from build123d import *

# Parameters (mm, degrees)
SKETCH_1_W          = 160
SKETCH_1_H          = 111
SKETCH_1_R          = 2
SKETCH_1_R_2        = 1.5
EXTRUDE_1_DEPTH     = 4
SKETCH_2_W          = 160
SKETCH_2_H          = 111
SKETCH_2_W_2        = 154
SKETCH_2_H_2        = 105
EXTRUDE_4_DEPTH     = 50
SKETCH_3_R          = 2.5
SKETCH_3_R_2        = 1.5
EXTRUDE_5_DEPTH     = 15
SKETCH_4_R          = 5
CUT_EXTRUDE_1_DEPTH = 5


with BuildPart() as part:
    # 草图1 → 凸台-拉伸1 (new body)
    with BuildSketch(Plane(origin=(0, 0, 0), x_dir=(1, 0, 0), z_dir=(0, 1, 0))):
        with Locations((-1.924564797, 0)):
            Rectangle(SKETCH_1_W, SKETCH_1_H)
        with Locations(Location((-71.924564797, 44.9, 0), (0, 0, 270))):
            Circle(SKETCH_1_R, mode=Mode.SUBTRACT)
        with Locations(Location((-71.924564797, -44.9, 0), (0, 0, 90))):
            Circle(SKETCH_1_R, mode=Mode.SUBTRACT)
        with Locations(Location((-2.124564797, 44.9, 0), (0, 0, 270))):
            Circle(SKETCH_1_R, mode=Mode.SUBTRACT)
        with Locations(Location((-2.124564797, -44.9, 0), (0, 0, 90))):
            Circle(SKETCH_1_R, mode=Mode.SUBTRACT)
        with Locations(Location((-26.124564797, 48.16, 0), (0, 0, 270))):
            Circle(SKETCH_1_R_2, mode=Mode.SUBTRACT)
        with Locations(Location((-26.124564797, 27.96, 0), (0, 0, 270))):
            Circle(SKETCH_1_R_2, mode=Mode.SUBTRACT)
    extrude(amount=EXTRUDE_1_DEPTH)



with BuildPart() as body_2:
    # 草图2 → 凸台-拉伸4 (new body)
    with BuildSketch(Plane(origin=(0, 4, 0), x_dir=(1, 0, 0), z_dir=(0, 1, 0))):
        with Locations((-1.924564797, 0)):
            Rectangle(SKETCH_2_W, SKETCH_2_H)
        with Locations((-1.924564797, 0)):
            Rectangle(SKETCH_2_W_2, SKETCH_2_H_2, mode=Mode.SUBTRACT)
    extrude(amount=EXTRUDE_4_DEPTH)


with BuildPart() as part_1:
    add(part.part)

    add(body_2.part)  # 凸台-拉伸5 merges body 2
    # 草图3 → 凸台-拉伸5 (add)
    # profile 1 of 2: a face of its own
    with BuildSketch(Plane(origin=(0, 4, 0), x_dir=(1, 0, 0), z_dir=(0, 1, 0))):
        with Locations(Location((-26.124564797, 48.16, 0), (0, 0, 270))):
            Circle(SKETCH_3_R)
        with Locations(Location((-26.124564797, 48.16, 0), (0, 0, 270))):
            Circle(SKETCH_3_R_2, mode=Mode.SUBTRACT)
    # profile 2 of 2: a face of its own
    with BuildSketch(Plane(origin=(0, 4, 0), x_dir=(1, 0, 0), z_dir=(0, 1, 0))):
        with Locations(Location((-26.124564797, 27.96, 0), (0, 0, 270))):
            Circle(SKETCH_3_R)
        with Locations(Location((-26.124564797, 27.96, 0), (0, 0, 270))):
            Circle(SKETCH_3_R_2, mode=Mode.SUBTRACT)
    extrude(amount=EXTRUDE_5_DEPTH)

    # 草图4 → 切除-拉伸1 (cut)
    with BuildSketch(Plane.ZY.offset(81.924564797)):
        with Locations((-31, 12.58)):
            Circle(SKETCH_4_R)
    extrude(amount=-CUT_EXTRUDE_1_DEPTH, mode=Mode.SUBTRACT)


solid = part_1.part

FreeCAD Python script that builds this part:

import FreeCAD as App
import Part
import Sketcher


def add_polygon(sketch, points):
    """Adds a closed chain of lines whose ends are joined by coincident constraints."""
    first, n = sketch.GeometryCount, len(points)
    for a, b in zip(points, points[1:] + points[:1]):
        sketch.addGeometry(Part.LineSegment(App.Vector(*a, 0), App.Vector(*b, 0)), False)
    for i in range(n):
        sketch.addConstraint(Sketcher.Constraint("Coincident", first + i, 2, first + (i + 1) % n, 1))

doc = App.newDocument("Part")
body = doc.addObject("PartDesign::Body", "Body")

# Sketch on XZ plane
sketch1 = body.newObject("Sketcher::SketchObject", "Sketch")
sketch1.AttachmentSupport = (doc.getObject("XZ_Plane"), [""])
sketch1.MapMode = "FlatFace"
add_polygon(sketch1, [(-81.9, -55.5), (-81.9, 55.5), (78.1, 55.5), (78.1, -55.5)])  # lines 0-3
sketch1.addGeometry(Part.Circle(App.Vector(-71.9, 44.9, 0), App.Vector(0, 0, 1), 2), False)  # 4
sketch1.addGeometry(Part.Circle(App.Vector(-2.1, 44.9, 0), App.Vector(0, 0, 1), 2), False)  # 5
sketch1.addGeometry(Part.Circle(App.Vector(-71.9, -44.9, 0), App.Vector(0, 0, 1), 2), False)  # 6
sketch1.addGeometry(Part.Circle(App.Vector(-26.1, -28, 0), App.Vector(0, 0, 1), 1.5), False)  # 7
sketch1.addGeometry(Part.Circle(App.Vector(-26.1, -48.2, 0), App.Vector(0, 0, 1), 1.5), False)  # 8
sketch1.addGeometry(Part.Circle(App.Vector(-2.1, -44.9, 0), App.Vector(0, 0, 1), 2), False)  # 9
sketch1.addConstraint(Sketcher.Constraint("Vertical", 0))
sketch1.addConstraint(Sketcher.Constraint("Horizontal", 1))
sketch1.addConstraint(Sketcher.Constraint("Vertical", 2))
sketch1.addConstraint(Sketcher.Constraint("Horizontal", 3))
sketch1.addConstraint(Sketcher.Constraint("Equal", 4, 5))
sketch1.addConstraint(Sketcher.Constraint("Equal", 5, 6))
sketch1.addConstraint(Sketcher.Constraint("Equal", 7, 8))
sketch1.addConstraint(Sketcher.Constraint("Equal", 6, 9))
sketch1.addConstraint(Sketcher.Constraint("Symmetric", 4, 3, 6, 3, -1))
sketch1.addConstraint(Sketcher.Constraint("Symmetric", 5, 3, 9, 3, -1))
sketch1.addConstraint(Sketcher.Constraint("Horizontal", 4, 3, 5, 3))
sketch1.addConstraint(Sketcher.Constraint("Vertical", 7, 3, 8, 3))
sketch1.addConstraint(Sketcher.Constraint("Diameter", 4, 4.0))
sketch1.addConstraint(Sketcher.Constraint("Diameter", 7, 3.0))
sketch1.addConstraint(Sketcher.Constraint("DistanceX", 1, 1, 1, 2, 160.0))
sketch1.addConstraint(Sketcher.Constraint("DistanceY", 0, 1, 0, 2, 111.0))
sketch1.addConstraint(Sketcher.Constraint("DistanceX", 7, 3, 5, 3, 24.0))
sketch1.addConstraint(Sketcher.Constraint("DistanceX", 0, 2, 4, 3, 10.0))
sketch1.addConstraint(Sketcher.Constraint("DistanceY", -1, 1, 4, 3, 44.9))
sketch1.addConstraint(Sketcher.Constraint("DistanceY", -1, 1, 0, 2, 55.5))
sketch1.addConstraint(Sketcher.Constraint("DistanceX", 4, 3, 5, 3, 69.8))
sketch1.addConstraint(Sketcher.Constraint("DistanceY", 8, 3, 7, 3, 20.2))
sketch1.addConstraint(Sketcher.Constraint("DistanceY", 7, 3, -1, 1, 27.96))
sketch1.addConstraint(Sketcher.Constraint("DistanceX", 4, 3, -1, 1, 71.924565))
pad1 = body.newObject("PartDesign::Pad", "Pad")
pad1.Profile = sketch1
pad1.Length = 4
pad1.Reversed = True
body2 = doc.addObject("PartDesign::Body", "Body001")

# Sketch on XZ plane
sketch2 = body2.newObject("Sketcher::SketchObject", "Sketch001")
sketch2.AttachmentSupport = (doc.getObject("XZ_Plane001"), [""])
sketch2.MapMode = "FlatFace"
sketch2.AttachmentOffset = App.Placement(App.Vector(0, 0, -4), App.Rotation())
add_polygon(sketch2, [(-82, -56), (-82, 56), (78, 56), (78, -56)])  # lines 0-3
add_polygon(sketch2, [(75, 52), (-79, 52), (-79, -52), (75, -52)])  # lines 4-7
sketch2.addConstraint(Sketcher.Constraint("Vertical", 0))
sketch2.addConstraint(Sketcher.Constraint("Horizontal", 1))
sketch2.addConstraint(Sketcher.Constraint("Vertical", 2))
sketch2.addConstraint(Sketcher.Constraint("Horizontal", 3))
sketch2.addConstraint(Sketcher.Constraint("Horizontal", 4))
sketch2.addConstraint(Sketcher.Constraint("Vertical", 5))
sketch2.addConstraint(Sketcher.Constraint("Horizontal", 6))
sketch2.addConstraint(Sketcher.Constraint("Vertical", 7))
sketch2.addConstraint(Sketcher.Constraint("DistanceX", 1, 1, 1, 2, 160.0))
sketch2.addConstraint(Sketcher.Constraint("DistanceX", 4, 2, 4, 1, 154.0))
sketch2.addConstraint(Sketcher.Constraint("DistanceY", 0, 1, 0, 2, 111.0))
sketch2.addConstraint(Sketcher.Constraint("DistanceY", 5, 2, 5, 1, 105.0))
sketch2.addConstraint(Sketcher.Constraint("DistanceX", 0, 2, 4, 2, 3.0))
sketch2.addConstraint(Sketcher.Constraint("DistanceY", 4, 2, 0, 2, 3.0))
sketch2.addConstraint(Sketcher.Constraint("DistanceY", -1, 1, 0, 2, 55.5))
sketch2.addConstraint(Sketcher.Constraint("DistanceX", 0, 2, -1, 1, 81.924565))
pad2 = body2.newObject("PartDesign::Pad", "Pad001")
pad2.Profile = sketch2
pad2.Length = 50
pad2.Reversed = True
doc.recompute()

boolean = body.newObject("PartDesign::Boolean", "Boolean")
boolean.Type = "Fuse"
boolean.addObjects([body2])

# Sketch on XZ plane
sketch3 = body.newObject("Sketcher::SketchObject", "Sketch002")
sketch3.AttachmentSupport = (doc.getObject("XZ_Plane"), [""])
sketch3.MapMode = "FlatFace"
sketch3.AttachmentOffset = App.Placement(App.Vector(0, 0, -4), App.Rotation())
sketch3.addGeometry(Part.Circle(App.Vector(-26.1, -48.2, 0), App.Vector(0, 0, 1), 2.5), False)
sketch3.addGeometry(Part.Circle(App.Vector(-26.1, -48.2, 0), App.Vector(0, 0, 1), 1.5), False)
sketch3.addGeometry(Part.Circle(App.Vector(-26.1, -28, 0), App.Vector(0, 0, 1), 2.5), False)
sketch3.addGeometry(Part.Circle(App.Vector(-26.1, -28, 0), App.Vector(0, 0, 1), 1.5), False)
sketch3.addConstraint(Sketcher.Constraint("Coincident", 1, 3, 0, 3))
sketch3.addConstraint(Sketcher.Constraint("Coincident", 3, 3, 2, 3))
sketch3.addConstraint(Sketcher.Constraint("Equal", 0, 2))
sketch3.addConstraint(Sketcher.Constraint("Equal", 1, 3))
sketch3.addConstraint(Sketcher.Constraint("Vertical", 1, 3, 2, 3))
sketch3.addConstraint(Sketcher.Constraint("Diameter", 0, 5.0))
sketch3.addConstraint(Sketcher.Constraint("Diameter", 1, 3.0))
sketch3.addConstraint(Sketcher.Constraint("DistanceY", 0, 3, 2, 3, 20.2))
sketch3.addConstraint(Sketcher.Constraint("DistanceY", 0, 3, -1, 1, 48.16))
sketch3.addConstraint(Sketcher.Constraint("DistanceX", 0, 3, -1, 1, 26.124565))
pad3 = body.newObject("PartDesign::Pad", "Pad002")
pad3.Profile = sketch3
pad3.Length = 15
pad3.Reversed = True

# Sketch on YZ plane
sketch4 = body.newObject("Sketcher::SketchObject", "Sketch003")
sketch4.AttachmentSupport = (doc.getObject("YZ_Plane"), [""])
sketch4.MapMode = "FlatFace"
sketch4.AttachmentOffset = App.Placement(App.Vector(0, 0, -81.924565), App.Rotation())
sketch4.addGeometry(Part.Circle(App.Vector(13, -31, 0), App.Vector(0, 0, 1), 5), False)
sketch4.addConstraint(Sketcher.Constraint("Diameter", 0, 10.0))
sketch4.addConstraint(Sketcher.Constraint("DistanceY", 0, 3, -1, 1, 31.0))
sketch4.addConstraint(Sketcher.Constraint("DistanceX", -1, 1, 0, 3, 12.58))
pocket1 = body.newObject("PartDesign::Pocket", "Pocket")
pocket1.Profile = sketch4
pocket1.Length = 5
pocket1.Reversed = True

doc.recompute()
